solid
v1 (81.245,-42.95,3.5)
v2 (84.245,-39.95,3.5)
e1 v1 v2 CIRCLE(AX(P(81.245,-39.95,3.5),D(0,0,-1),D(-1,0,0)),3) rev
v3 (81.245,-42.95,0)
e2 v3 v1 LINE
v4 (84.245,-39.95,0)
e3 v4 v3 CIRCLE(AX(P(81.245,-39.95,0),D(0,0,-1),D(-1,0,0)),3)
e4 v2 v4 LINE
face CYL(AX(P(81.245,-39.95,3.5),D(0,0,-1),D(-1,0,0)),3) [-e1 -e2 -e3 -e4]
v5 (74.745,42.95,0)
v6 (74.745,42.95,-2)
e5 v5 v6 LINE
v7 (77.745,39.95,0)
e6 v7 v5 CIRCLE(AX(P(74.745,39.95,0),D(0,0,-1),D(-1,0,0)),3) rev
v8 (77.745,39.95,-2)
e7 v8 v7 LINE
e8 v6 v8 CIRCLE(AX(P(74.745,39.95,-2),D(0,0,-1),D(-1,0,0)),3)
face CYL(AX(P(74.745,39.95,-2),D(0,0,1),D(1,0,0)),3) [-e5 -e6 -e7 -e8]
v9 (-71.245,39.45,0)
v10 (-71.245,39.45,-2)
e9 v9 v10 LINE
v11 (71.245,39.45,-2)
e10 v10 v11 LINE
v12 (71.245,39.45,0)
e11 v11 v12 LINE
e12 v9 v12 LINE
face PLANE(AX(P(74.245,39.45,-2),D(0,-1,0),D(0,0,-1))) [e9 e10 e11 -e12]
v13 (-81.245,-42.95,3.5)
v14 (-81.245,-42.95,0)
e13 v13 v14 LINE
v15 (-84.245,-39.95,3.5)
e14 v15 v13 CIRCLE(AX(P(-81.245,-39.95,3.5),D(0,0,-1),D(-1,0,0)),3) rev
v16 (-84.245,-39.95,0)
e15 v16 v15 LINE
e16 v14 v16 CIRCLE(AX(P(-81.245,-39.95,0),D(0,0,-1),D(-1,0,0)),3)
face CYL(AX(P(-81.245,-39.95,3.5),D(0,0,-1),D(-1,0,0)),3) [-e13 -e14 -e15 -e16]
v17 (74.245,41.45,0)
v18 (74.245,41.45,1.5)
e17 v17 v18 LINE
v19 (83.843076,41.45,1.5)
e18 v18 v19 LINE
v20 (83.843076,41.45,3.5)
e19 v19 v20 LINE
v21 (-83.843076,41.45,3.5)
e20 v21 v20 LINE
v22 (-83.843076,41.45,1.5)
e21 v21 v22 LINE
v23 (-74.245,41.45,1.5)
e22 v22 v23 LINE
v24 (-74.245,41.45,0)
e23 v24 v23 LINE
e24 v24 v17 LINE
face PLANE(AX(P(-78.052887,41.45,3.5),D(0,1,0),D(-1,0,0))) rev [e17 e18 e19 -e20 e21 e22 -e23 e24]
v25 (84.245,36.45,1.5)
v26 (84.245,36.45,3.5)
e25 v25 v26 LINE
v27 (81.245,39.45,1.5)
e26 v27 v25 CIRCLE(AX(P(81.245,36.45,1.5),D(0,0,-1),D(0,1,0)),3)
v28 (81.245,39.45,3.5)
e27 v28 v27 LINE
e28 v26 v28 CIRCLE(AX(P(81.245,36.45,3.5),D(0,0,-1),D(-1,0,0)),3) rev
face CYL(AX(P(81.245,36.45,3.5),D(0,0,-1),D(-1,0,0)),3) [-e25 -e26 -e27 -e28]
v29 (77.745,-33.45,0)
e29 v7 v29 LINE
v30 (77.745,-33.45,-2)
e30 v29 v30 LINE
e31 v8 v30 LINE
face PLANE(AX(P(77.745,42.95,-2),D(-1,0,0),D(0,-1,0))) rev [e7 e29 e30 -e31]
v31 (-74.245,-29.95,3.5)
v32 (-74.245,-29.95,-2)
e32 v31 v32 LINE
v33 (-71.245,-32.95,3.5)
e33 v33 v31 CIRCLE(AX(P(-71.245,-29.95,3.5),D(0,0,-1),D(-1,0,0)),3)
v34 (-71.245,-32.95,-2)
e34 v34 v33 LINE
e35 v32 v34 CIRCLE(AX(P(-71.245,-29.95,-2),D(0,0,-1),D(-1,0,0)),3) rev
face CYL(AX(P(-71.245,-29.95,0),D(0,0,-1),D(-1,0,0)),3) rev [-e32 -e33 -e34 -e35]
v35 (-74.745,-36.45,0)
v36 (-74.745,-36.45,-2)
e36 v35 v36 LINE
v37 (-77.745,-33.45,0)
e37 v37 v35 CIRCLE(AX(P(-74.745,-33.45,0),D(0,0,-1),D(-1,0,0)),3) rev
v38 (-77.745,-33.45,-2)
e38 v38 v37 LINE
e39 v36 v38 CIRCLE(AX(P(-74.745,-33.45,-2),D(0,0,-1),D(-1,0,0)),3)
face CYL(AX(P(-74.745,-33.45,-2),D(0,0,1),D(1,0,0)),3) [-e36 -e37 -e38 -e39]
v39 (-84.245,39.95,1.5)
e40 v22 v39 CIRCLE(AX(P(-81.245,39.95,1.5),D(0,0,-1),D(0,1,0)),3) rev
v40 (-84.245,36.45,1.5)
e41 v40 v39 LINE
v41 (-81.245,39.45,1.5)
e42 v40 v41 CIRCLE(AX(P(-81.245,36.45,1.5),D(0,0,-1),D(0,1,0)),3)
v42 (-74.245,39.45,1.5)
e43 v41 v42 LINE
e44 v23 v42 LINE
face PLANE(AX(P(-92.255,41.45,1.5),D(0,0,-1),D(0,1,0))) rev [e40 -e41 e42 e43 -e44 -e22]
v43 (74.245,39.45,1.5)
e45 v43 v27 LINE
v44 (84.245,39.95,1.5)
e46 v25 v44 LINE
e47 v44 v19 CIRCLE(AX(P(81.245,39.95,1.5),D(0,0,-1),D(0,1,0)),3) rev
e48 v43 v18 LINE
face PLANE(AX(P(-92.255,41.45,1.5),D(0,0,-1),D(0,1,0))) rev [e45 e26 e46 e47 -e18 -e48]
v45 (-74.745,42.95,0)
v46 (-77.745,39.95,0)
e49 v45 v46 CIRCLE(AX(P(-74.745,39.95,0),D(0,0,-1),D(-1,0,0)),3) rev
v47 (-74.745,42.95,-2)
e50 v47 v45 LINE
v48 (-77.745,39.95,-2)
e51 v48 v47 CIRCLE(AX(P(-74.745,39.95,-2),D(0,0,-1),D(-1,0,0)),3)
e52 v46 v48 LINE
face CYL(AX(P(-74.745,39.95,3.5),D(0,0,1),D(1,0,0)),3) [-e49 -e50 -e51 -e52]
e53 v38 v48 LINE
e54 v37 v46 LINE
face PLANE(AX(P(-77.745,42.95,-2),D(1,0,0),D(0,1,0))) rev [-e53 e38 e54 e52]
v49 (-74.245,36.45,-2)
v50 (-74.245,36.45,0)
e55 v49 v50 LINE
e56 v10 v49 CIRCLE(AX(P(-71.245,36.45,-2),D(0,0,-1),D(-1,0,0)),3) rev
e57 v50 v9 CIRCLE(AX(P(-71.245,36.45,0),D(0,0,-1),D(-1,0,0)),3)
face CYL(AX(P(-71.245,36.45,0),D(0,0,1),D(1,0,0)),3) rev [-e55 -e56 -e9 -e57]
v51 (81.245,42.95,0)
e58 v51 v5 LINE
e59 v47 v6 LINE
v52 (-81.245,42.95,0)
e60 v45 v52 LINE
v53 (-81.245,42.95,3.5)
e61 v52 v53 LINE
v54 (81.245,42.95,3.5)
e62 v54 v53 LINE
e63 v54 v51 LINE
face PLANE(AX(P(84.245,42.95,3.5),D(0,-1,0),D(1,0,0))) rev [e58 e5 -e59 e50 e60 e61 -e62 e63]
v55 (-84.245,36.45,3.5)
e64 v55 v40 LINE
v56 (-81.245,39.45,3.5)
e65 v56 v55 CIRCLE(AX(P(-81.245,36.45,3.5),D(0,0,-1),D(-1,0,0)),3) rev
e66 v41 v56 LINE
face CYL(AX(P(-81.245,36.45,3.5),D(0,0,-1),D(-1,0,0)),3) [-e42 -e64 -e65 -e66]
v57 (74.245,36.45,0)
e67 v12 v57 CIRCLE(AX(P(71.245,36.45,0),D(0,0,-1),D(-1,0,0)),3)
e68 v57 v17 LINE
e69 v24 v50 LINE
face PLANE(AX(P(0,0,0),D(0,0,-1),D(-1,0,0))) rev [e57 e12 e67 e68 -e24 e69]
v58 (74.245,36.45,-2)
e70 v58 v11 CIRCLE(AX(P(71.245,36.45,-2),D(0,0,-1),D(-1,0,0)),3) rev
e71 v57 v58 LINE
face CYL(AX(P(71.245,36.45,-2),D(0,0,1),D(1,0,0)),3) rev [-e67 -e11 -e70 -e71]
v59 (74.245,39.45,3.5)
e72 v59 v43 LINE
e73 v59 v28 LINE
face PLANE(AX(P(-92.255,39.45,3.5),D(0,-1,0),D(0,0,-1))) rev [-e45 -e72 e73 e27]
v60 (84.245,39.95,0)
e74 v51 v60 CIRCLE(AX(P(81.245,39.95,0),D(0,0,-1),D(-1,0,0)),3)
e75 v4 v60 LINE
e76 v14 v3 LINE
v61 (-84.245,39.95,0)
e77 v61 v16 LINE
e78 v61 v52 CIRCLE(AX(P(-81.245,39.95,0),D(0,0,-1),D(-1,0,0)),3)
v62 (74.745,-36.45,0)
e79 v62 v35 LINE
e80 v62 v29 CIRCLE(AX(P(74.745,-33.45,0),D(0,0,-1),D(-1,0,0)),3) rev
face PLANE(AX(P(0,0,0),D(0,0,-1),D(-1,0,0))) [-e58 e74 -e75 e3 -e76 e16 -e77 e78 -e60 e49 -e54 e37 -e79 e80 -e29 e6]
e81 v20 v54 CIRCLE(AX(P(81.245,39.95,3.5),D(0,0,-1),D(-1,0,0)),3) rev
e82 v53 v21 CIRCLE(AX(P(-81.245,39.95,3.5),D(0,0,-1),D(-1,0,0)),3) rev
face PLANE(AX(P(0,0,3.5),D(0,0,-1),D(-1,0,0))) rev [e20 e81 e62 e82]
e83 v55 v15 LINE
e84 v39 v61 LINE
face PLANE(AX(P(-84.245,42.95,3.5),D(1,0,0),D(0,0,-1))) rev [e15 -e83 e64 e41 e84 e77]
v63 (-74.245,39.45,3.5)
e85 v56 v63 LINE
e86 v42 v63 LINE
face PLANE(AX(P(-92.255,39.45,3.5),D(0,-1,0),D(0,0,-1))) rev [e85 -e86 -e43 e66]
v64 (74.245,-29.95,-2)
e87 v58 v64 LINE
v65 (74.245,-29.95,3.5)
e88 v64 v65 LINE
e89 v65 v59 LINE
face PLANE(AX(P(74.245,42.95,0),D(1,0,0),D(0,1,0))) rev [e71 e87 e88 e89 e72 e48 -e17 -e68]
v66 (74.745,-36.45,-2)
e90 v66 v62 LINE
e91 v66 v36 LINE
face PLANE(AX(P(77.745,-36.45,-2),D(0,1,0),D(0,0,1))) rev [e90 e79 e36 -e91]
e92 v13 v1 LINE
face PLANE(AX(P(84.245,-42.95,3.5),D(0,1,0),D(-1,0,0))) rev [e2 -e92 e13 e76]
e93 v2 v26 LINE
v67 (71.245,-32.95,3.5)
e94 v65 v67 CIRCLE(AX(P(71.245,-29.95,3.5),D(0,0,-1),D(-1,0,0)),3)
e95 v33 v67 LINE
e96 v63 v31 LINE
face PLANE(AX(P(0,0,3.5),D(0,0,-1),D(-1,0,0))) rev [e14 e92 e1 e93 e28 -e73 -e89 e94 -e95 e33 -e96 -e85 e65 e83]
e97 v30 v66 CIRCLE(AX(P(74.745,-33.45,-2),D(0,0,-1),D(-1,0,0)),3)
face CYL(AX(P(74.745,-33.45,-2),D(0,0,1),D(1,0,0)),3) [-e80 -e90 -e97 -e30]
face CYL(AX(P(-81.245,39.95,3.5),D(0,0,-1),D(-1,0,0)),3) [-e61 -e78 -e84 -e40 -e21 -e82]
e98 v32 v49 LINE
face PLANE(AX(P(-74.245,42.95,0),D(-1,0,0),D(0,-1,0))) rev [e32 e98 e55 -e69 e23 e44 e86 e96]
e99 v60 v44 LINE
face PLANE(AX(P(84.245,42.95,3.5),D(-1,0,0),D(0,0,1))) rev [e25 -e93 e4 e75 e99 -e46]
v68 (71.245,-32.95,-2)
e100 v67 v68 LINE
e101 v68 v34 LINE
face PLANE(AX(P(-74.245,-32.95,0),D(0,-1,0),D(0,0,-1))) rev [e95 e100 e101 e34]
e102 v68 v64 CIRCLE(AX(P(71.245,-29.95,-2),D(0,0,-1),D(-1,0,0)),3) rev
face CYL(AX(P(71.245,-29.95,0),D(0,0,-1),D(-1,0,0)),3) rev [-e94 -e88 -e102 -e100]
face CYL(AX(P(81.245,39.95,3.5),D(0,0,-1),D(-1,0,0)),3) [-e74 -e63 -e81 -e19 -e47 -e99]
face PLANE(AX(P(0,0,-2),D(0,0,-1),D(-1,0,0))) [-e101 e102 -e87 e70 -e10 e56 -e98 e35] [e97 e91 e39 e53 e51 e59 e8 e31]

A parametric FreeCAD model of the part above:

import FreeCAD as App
import Part
import Sketcher


def edges_at(feature, points):
    """Names of the edges that pass closest to the given points."""
    edges = feature.Shape.Edges
    near = lambda p: min(range(len(edges)), key=lambda i: edges[i].distToShape(Part.Vertex(*p))[0])
    return sorted({f"Edge{near(p) + 1}" for p in points})

doc = App.newDocument("Part")
params = doc.addObject("Spreadsheet::Sheet", "Params")
for row, (alias, value) in enumerate([
    ("sketch1_height", "85.9 mm"),
    ("sketch1_width", "168.49 mm"),
    ("pad1_length", "3.5 mm"),
    ("sketch2_height", "75.9 mm"),
    ("sketch2_width", "148.49 mm"),
    ("pocket1_length", "3.5 mm"),
    ("sketch3_width", "1.5 mm"),
    ("sketch3_height", "3.5 mm"),
    ("pad2_length", "148.49 mm"),
    ("sketch4_width", "2 mm"),
    ("pocket2_length", "176.5 mm"),
    ("fillet_radius", "3 mm"),
    ("fillet2_radius", "3 mm"),
    ("sketch5_height", "79.4 mm"),
    ("sketch5_height2", "72.4 mm"),
    ("sketch5_width", "155.49 mm"),
    ("sketch5_width2", "148.49 mm"),
    ("pad3_length", "2 mm"),
    ("fillet3_radius", "3 mm"),
    ("fillet4_radius", "3 mm"),
    ("fillet5_radius", "3 mm"),
    ("fillet6_radius", "3 mm"),
], start=1):
    params.set(f"A{row}", alias)
    params.set(f"B{row}", "=" + value)
    params.setAlias(f"B{row}", alias)

body = doc.addObject("PartDesign::Body", "Body")

sketch1 = doc.addObject("Sketcher::SketchObject", "Sketch")
body.addObject(sketch1)
sketch1.AttachmentSupport = (doc.XY_Plane, [""])
sketch1.MapMode = "FlatFace"
sketch1.addGeometry(Part.LineSegment(App.Vector(-84.245, 42.95, 0), App.Vector(-84.245, -42.95, 0)), False)
sketch1.addGeometry(Part.LineSegment(App.Vector(-84.245, -42.95, 0), App.Vector(84.245, -42.95, 0)), False)
sketch1.addGeometry(Part.LineSegment(App.Vector(84.245, -42.95, 0), App.Vector(84.245, 42.95, 0)), False)
sketch1.addGeometry(Part.LineSegment(App.Vector(84.245, 42.95, 0), App.Vector(-84.245, 42.95, 0)), False)
sketch1.addConstraint(Sketcher.Constraint("Coincident", 0, 2, 1, 1))
sketch1.addConstraint(Sketcher.Constraint("Coincident", 1, 2, 2, 1))
sketch1.addConstraint(Sketcher.Constraint("Coincident", 2, 2, 3, 1))
sketch1.addConstraint(Sketcher.Constraint("Coincident", 3, 2, 0, 1))
sketch1.addConstraint(Sketcher.Constraint("Vertical", 0))
sketch1.addConstraint(Sketcher.Constraint("Horizontal", 1))
sketch1.addConstraint(Sketcher.Constraint("Vertical", 2))
sketch1.addConstraint(Sketcher.Constraint("Horizontal", 3))
sketch1.addConstraint(Sketcher.Constraint("Symmetric", 0, 2, 2, 2, -1, 1))
sketch1.addConstraint(Sketcher.Constraint("DistanceY", 0, 2, 0, 1, 85.9))
sketch1.addConstraint(Sketcher.Constraint("DistanceX", 1, 1, 1, 2, 168.49))
sketch1.setExpression("Constraints[9]", "Params.sketch1_height")
sketch1.setExpression("Constraints[10]", "Params.sketch1_width")
pad1 = doc.addObject("PartDesign::Pad", "Pad")
body.addObject(pad1)
pad1.Profile = sketch1
pad1.setExpression("Length", "Params.pad1_length")

sketch2 = doc.addObject("Sketcher::SketchObject", "Sketch001")
body.addObject(sketch2)
sketch2.AttachmentSupport = (doc.XY_Plane, [""])
sketch2.MapMode = "FlatFace"
sketch2.AttachmentOffset = App.Placement(App.Vector(0, 0, 3.5), App.Rotation())
sketch2.addGeometry(Part.LineSegment(App.Vector(-74.245, 42.95, 0), App.Vector(-74.245, -32.95, 0)), False)
sketch2.addGeometry(Part.LineSegment(App.Vector(-74.245, -32.95, 0), App.Vector(74.245, -32.95, 0)), False)
sketch2.addGeometry(Part.LineSegment(App.Vector(74.245, -32.95, 0), App.Vector(74.245, 42.95, 0)), False)
sketch2.addGeometry(Part.LineSegment(App.Vector(74.245, 42.95, 0), App.Vector(-74.245, 42.95, 0)), False)
sketch2.addConstraint(Sketcher.Constraint("Coincident", 0, 2, 1, 1))
sketch2.addConstraint(Sketcher.Constraint("Coincident", 1, 2, 2, 1))
sketch2.addConstraint(Sketcher.Constraint("Coincident", 2, 2, 3, 1))
sketch2.addConstraint(Sketcher.Constraint("Coincident", 3, 2, 0, 1))
sketch2.addConstraint(Sketcher.Constraint("Vertical", 0))
sketch2.addConstraint(Sketcher.Constraint("Horizontal", 1))
sketch2.addConstraint(Sketcher.Constraint("Vertical", 2))
sketch2.addConstraint(Sketcher.Constraint("Horizontal", 3))
sketch2.addConstraint(Sketcher.Constraint("DistanceY", 0, 2, 0, 1, 75.9))
sketch2.addConstraint(Sketcher.Constraint("DistanceX", 1, 1, 1, 2, 148.49))
sketch2.addConstraint(Sketcher.Constraint("DistanceY", 0, 2, -1, 1, 32.95))
sketch2.addConstraint(Sketcher.Constraint("DistanceX", 0, 2, -1, 1, 74.245))
sketch2.setExpression("Constraints[8]", "Params.sketch2_height")
sketch2.setExpression("Constraints[9]", "Params.sketch2_width")
pocket1 = doc.addObject("PartDesign::Pocket", "Pocket")
body.addObject(pocket1)
pocket1.Profile = sketch2
pocket1.setExpression("Length", "Params.pocket1_length")

sketch3 = doc.addObject("Sketcher::SketchObject", "Sketch002")
body.addObject(sketch3)
sketch3.AttachmentSupport = (doc.YZ_Plane, [""])
sketch3.MapMode = "FlatFace"
sketch3.AttachmentOffset = App.Placement(App.Vector(0, 0, 74.245), App.Rotation())
sketch3.addGeometry(Part.LineSegment(App.Vector(42.95, 0, 0), App.Vector(41.45, 0, 0)), False)
sketch3.addGeometry(Part.LineSegment(App.Vector(41.45, 0, 0), App.Vector(41.45, 3.5, 0)), False)
sketch3.addGeometry(Part.LineSegment(App.Vector(41.45, 3.5, 0), App.Vector(42.95, 3.5, 0)), False)
sketch3.addGeometry(Part.LineSegment(App.Vector(42.95, 3.5, 0), App.Vector(42.95, 0, 0)), False)
sketch3.addConstraint(Sketcher.Constraint("Coincident", 0, 2, 1, 1))
sketch3.addConstraint(Sketcher.Constraint("Coincident", 1, 2, 2, 1))
sketch3.addConstraint(Sketcher.Constraint("Coincident", 2, 2, 3, 1))
sketch3.addConstraint(Sketcher.Constraint("Coincident", 3, 2, 0, 1))
sketch3.addConstraint(Sketcher.Constraint("Horizontal", 0))
sketch3.addConstraint(Sketcher.Constraint("Vertical", 1))
sketch3.addConstraint(Sketcher.Constraint("Horizontal", 2))
sketch3.addConstraint(Sketcher.Constraint("Vertical", 3))
sketch3.addConstraint(Sketcher.Constraint("PointOnObject", 0, 2, -1))
sketch3.addConstraint(Sketcher.Constraint("DistanceX", 0, 2, 0, 1, 1.5))
sketch3.addConstraint(Sketcher.Constraint("DistanceY", 1, 1, 1, 2, 3.5))
sketch3.addConstraint(Sketcher.Constraint("DistanceX", -1, 1, 0, 2, 41.45))
sketch3.setExpression("Constraints[9]", "Params.sketch3_width")
sketch3.setExpression("Constraints[10]", "Params.sketch3_height")
pad2 = doc.addObject("PartDesign::Pad", "Pad001")
body.addObject(pad2)
pad2.Profile = sketch3
pad2.setExpression("Length", "Params.pad2_length")
pad2.Reversed = True

sketch4 = doc.addObject("Sketcher::SketchObject", "Sketch003")
body.addObject(sketch4)
sketch4.AttachmentSupport = (doc.YZ_Plane, [""])
sketch4.MapMode = "FlatFace"
sketch4.AttachmentOffset = App.Placement(App.Vector(0, 0, 84.245), App.Rotation())
sketch4.addGeometry(Part.LineSegment(App.Vector(41.45, 3.5, 0), App.Vector(39.45, 3.5, 0)), False)
sketch4.addGeometry(Part.LineSegment(App.Vector(39.45, 3.5, 0), App.Vector(39.45, 1.5, 0)), False)
sketch4.addGeometry(Part.LineSegment(App.Vector(39.45, 1.5, 0), App.Vector(41.45, 1.5, 0)), False)
sketch4.addGeometry(Part.LineSegment(App.Vector(41.45, 1.5, 0), App.Vector(41.45, 3.5, 0)), False)
sketch4.addConstraint(Sketcher.Constraint("Coincident", 0, 2, 1, 1))
sketch4.addConstraint(Sketcher.Constraint("Coincident", 1, 2, 2, 1))
sketch4.addConstraint(Sketcher.Constraint("Coincident", 2, 2, 3, 1))
sketch4.addConstraint(Sketcher.Constraint("Coincident", 3, 2, 0, 1))
sketch4.addConstraint(Sketcher.Constraint("Horizontal", 0))
sketch4.addConstraint(Sketcher.Constraint("Vertical", 1))
sketch4.addConstraint(Sketcher.Constraint("Horizontal", 2))
sketch4.addConstraint(Sketcher.Constraint("Vertical", 3))
sketch4.addConstraint(Sketcher.Constraint("Equal", 2, 1))
sketch4.addConstraint(Sketcher.Constraint("DistanceX", 0, 2, 0, 1, 2.0))
sketch4.addConstraint(Sketcher.Constraint("DistanceY", -1, 1, 0, 2, 3.5))
sketch4.addConstraint(Sketcher.Constraint("DistanceX", -1, 1, 0, 2, 39.45))
sketch4.setExpression("Constraints[9]", "Params.sketch4_width")
pocket2 = doc.addObject("PartDesign::Pocket", "Pocket001")
body.addObject(pocket2)
pocket2.Profile = sketch4
pocket2.setExpression("Length", "Params.pocket2_length")
doc.recompute()

fillet = doc.addObject("PartDesign::Fillet", "Fillet")
body.addObject(fillet)
fillet.Base = (pocket2, edges_at(pocket2, [(-84.245, -42.95, 1.75)]))
fillet.setExpression("Radius", "Params.fillet_radius")
doc.recompute()

fillet2 = doc.addObject("PartDesign::Fillet", "Fillet001")
body.addObject(fillet2)
fillet2.Base = (fillet, edges_at(fillet, [(-84.245, 39.45, 2.5), (84.245, -42.95, 1.75)]))
fillet2.setExpression("Radius", "Params.fillet2_radius")

sketch5 = doc.addObject("Sketcher::SketchObject", "Sketch004")
body.addObject(sketch5)
sketch5.AttachmentSupport = (doc.XY_Plane, [""])
sketch5.MapMode = "FlatFace"
sketch5.addGeometry(Part.LineSegment(App.Vector(77.745, 42.95, 0), App.Vector(77.745, -36.45, 0)), False)
sketch5.addGeometry(Part.LineSegment(App.Vector(77.745, -36.45, 0), App.Vector(-77.745, -36.45, 0)), False)
sketch5.addGeometry(Part.LineSegment(App.Vector(-77.745, -36.45, 0), App.Vector(-77.745, 42.95, 0)), False)
sketch5.addGeometry(Part.LineSegment(App.Vector(-77.745, 42.95, 0), App.Vector(77.745, 42.95, 0)), False)
sketch5.addGeometry(Part.LineSegment(App.Vector(-74.245, -32.95, 0), App.Vector(74.245, -32.95, 0)), False)
sketch5.addGeometry(Part.LineSegment(App.Vector(74.245, -32.95, 0), App.Vector(74.245, 39.45, 0)), False)
sketch5.addGeometry(Part.LineSegment(App.Vector(74.245, 39.45, 0), App.Vector(-74.245, 39.45, 0)), False)
sketch5.addGeometry(Part.LineSegment(App.Vector(-74.245, 39.45, 0), App.Vector(-74.245, -32.95, 0)), False)
sketch5.addConstraint(Sketcher.Constraint("Coincident", 0, 2, 1, 1))
sketch5.addConstraint(Sketcher.Constraint("Coincident", 1, 2, 2, 1))
sketch5.addConstraint(Sketcher.Constraint("Coincident", 2, 2, 3, 1))
sketch5.addConstraint(Sketcher.Constraint("Coincident", 3, 2, 0, 1))
sketch5.addConstraint(Sketcher.Constraint("Coincident", 4, 2, 5, 1))
sketch5.addConstraint(Sketcher.Constraint("Coincident", 5, 2, 6, 1))
sketch5.addConstraint(Sketcher.Constraint("Coincident", 6, 2, 7, 1))
sketch5.addConstraint(Sketcher.Constraint("Coincident", 7, 2, 4, 1))
sketch5.addConstraint(Sketcher.Constraint("Vertical", 0))
sketch5.addConstraint(Sketcher.Constraint("Horizontal", 1))
sketch5.addConstraint(Sketcher.Constraint("Vertical", 2))
sketch5.addConstraint(Sketcher.Constraint("Horizontal", 3))
sketch5.addConstraint(Sketcher.Constraint("Horizontal", 4))
sketch5.addConstraint(Sketcher.Constraint("Vertical", 5))
sketch5.addConstraint(Sketcher.Constraint("Horizontal", 6))
sketch5.addConstraint(Sketcher.Constraint("Vertical", 7))
sketch5.addConstraint(Sketcher.Constraint("DistanceY", 0, 2, 0, 1, 79.4))
sketch5.addConstraint(Sketcher.Constraint("DistanceY", 5, 1, 5, 2, 72.4))
sketch5.addConstraint(Sketcher.Constraint("DistanceX", 1, 2, 1, 1, 155.49))
sketch5.addConstraint(Sketcher.Constraint("DistanceX", 4, 1, 4, 2, 148.49))
sketch5.addConstraint(Sketcher.Constraint("DistanceX", 4, 2, 0, 2, 3.5))
sketch5.addConstraint(Sketcher.Constraint("DistanceY", 0, 2, 4, 2, 3.5))
sketch5.addConstraint(Sketcher.Constraint("DistanceY", 0, 2, -1, 1, 36.45))
sketch5.addConstraint(Sketcher.Constraint("DistanceX", -1, 1, 0, 2, 77.745))
sketch5.setExpression("Constraints[16]", "Params.sketch5_height")
sketch5.setExpression("Constraints[17]", "Params.sketch5_height2")
sketch5.setExpression("Constraints[18]", "Params.sketch5_width")
sketch5.setExpression("Constraints[19]", "Params.sketch5_width2")
pad3 = doc.addObject("PartDesign::Pad", "Pad002")
body.addObject(pad3)
pad3.Profile = sketch5
pad3.setExpression("Length", "Params.pad3_length")
pad3.Reversed = True
doc.recompute()

fillet3 = doc.addObject("PartDesign::Fillet", "Fillet002")
body.addObject(fillet3)
fillet3.Base = (pad3, edges_at(pad3, [(84.245, 39.45, 2.5)]))
fillet3.setExpression("Radius", "Params.fillet3_radius")
doc.recompute()

fillet4 = doc.addObject("PartDesign::Fillet", "Fillet003")
body.addObject(fillet4)
fillet4.Base = (fillet3, edges_at(fillet3, [(-84.245, 42.95, 1.75), (84.245, 42.95, 1.75)]))
fillet4.setExpression("Radius", "Params.fillet4_radius")
doc.recompute()

fillet5 = doc.addObject("PartDesign::Fillet", "Fillet004")
body.addObject(fillet5)
fillet5.Base = (fillet4, edges_at(fillet4, [
    (77.745, 42.95, -1),
    (77.745, -36.45, -1),
    (-77.745, -36.45, -1),
    (-77.745, 42.95, -1),
]))
fillet5.setExpression("Radius", "Params.fillet5_radius")
doc.recompute()

fillet6 = doc.addObject("PartDesign::Fillet", "Fillet005")
body.addObject(fillet6)
fillet6.Base = (fillet5, edges_at(fillet5, [
    (74.245, 39.45, -1),
    (-74.245, 39.45, -1),
    (-74.245, -32.95, 0.75),
    (74.245, -32.95, 0.75),
]))
fillet6.setExpression("Radius", "Params.fillet6_radius")

doc.recompute()
